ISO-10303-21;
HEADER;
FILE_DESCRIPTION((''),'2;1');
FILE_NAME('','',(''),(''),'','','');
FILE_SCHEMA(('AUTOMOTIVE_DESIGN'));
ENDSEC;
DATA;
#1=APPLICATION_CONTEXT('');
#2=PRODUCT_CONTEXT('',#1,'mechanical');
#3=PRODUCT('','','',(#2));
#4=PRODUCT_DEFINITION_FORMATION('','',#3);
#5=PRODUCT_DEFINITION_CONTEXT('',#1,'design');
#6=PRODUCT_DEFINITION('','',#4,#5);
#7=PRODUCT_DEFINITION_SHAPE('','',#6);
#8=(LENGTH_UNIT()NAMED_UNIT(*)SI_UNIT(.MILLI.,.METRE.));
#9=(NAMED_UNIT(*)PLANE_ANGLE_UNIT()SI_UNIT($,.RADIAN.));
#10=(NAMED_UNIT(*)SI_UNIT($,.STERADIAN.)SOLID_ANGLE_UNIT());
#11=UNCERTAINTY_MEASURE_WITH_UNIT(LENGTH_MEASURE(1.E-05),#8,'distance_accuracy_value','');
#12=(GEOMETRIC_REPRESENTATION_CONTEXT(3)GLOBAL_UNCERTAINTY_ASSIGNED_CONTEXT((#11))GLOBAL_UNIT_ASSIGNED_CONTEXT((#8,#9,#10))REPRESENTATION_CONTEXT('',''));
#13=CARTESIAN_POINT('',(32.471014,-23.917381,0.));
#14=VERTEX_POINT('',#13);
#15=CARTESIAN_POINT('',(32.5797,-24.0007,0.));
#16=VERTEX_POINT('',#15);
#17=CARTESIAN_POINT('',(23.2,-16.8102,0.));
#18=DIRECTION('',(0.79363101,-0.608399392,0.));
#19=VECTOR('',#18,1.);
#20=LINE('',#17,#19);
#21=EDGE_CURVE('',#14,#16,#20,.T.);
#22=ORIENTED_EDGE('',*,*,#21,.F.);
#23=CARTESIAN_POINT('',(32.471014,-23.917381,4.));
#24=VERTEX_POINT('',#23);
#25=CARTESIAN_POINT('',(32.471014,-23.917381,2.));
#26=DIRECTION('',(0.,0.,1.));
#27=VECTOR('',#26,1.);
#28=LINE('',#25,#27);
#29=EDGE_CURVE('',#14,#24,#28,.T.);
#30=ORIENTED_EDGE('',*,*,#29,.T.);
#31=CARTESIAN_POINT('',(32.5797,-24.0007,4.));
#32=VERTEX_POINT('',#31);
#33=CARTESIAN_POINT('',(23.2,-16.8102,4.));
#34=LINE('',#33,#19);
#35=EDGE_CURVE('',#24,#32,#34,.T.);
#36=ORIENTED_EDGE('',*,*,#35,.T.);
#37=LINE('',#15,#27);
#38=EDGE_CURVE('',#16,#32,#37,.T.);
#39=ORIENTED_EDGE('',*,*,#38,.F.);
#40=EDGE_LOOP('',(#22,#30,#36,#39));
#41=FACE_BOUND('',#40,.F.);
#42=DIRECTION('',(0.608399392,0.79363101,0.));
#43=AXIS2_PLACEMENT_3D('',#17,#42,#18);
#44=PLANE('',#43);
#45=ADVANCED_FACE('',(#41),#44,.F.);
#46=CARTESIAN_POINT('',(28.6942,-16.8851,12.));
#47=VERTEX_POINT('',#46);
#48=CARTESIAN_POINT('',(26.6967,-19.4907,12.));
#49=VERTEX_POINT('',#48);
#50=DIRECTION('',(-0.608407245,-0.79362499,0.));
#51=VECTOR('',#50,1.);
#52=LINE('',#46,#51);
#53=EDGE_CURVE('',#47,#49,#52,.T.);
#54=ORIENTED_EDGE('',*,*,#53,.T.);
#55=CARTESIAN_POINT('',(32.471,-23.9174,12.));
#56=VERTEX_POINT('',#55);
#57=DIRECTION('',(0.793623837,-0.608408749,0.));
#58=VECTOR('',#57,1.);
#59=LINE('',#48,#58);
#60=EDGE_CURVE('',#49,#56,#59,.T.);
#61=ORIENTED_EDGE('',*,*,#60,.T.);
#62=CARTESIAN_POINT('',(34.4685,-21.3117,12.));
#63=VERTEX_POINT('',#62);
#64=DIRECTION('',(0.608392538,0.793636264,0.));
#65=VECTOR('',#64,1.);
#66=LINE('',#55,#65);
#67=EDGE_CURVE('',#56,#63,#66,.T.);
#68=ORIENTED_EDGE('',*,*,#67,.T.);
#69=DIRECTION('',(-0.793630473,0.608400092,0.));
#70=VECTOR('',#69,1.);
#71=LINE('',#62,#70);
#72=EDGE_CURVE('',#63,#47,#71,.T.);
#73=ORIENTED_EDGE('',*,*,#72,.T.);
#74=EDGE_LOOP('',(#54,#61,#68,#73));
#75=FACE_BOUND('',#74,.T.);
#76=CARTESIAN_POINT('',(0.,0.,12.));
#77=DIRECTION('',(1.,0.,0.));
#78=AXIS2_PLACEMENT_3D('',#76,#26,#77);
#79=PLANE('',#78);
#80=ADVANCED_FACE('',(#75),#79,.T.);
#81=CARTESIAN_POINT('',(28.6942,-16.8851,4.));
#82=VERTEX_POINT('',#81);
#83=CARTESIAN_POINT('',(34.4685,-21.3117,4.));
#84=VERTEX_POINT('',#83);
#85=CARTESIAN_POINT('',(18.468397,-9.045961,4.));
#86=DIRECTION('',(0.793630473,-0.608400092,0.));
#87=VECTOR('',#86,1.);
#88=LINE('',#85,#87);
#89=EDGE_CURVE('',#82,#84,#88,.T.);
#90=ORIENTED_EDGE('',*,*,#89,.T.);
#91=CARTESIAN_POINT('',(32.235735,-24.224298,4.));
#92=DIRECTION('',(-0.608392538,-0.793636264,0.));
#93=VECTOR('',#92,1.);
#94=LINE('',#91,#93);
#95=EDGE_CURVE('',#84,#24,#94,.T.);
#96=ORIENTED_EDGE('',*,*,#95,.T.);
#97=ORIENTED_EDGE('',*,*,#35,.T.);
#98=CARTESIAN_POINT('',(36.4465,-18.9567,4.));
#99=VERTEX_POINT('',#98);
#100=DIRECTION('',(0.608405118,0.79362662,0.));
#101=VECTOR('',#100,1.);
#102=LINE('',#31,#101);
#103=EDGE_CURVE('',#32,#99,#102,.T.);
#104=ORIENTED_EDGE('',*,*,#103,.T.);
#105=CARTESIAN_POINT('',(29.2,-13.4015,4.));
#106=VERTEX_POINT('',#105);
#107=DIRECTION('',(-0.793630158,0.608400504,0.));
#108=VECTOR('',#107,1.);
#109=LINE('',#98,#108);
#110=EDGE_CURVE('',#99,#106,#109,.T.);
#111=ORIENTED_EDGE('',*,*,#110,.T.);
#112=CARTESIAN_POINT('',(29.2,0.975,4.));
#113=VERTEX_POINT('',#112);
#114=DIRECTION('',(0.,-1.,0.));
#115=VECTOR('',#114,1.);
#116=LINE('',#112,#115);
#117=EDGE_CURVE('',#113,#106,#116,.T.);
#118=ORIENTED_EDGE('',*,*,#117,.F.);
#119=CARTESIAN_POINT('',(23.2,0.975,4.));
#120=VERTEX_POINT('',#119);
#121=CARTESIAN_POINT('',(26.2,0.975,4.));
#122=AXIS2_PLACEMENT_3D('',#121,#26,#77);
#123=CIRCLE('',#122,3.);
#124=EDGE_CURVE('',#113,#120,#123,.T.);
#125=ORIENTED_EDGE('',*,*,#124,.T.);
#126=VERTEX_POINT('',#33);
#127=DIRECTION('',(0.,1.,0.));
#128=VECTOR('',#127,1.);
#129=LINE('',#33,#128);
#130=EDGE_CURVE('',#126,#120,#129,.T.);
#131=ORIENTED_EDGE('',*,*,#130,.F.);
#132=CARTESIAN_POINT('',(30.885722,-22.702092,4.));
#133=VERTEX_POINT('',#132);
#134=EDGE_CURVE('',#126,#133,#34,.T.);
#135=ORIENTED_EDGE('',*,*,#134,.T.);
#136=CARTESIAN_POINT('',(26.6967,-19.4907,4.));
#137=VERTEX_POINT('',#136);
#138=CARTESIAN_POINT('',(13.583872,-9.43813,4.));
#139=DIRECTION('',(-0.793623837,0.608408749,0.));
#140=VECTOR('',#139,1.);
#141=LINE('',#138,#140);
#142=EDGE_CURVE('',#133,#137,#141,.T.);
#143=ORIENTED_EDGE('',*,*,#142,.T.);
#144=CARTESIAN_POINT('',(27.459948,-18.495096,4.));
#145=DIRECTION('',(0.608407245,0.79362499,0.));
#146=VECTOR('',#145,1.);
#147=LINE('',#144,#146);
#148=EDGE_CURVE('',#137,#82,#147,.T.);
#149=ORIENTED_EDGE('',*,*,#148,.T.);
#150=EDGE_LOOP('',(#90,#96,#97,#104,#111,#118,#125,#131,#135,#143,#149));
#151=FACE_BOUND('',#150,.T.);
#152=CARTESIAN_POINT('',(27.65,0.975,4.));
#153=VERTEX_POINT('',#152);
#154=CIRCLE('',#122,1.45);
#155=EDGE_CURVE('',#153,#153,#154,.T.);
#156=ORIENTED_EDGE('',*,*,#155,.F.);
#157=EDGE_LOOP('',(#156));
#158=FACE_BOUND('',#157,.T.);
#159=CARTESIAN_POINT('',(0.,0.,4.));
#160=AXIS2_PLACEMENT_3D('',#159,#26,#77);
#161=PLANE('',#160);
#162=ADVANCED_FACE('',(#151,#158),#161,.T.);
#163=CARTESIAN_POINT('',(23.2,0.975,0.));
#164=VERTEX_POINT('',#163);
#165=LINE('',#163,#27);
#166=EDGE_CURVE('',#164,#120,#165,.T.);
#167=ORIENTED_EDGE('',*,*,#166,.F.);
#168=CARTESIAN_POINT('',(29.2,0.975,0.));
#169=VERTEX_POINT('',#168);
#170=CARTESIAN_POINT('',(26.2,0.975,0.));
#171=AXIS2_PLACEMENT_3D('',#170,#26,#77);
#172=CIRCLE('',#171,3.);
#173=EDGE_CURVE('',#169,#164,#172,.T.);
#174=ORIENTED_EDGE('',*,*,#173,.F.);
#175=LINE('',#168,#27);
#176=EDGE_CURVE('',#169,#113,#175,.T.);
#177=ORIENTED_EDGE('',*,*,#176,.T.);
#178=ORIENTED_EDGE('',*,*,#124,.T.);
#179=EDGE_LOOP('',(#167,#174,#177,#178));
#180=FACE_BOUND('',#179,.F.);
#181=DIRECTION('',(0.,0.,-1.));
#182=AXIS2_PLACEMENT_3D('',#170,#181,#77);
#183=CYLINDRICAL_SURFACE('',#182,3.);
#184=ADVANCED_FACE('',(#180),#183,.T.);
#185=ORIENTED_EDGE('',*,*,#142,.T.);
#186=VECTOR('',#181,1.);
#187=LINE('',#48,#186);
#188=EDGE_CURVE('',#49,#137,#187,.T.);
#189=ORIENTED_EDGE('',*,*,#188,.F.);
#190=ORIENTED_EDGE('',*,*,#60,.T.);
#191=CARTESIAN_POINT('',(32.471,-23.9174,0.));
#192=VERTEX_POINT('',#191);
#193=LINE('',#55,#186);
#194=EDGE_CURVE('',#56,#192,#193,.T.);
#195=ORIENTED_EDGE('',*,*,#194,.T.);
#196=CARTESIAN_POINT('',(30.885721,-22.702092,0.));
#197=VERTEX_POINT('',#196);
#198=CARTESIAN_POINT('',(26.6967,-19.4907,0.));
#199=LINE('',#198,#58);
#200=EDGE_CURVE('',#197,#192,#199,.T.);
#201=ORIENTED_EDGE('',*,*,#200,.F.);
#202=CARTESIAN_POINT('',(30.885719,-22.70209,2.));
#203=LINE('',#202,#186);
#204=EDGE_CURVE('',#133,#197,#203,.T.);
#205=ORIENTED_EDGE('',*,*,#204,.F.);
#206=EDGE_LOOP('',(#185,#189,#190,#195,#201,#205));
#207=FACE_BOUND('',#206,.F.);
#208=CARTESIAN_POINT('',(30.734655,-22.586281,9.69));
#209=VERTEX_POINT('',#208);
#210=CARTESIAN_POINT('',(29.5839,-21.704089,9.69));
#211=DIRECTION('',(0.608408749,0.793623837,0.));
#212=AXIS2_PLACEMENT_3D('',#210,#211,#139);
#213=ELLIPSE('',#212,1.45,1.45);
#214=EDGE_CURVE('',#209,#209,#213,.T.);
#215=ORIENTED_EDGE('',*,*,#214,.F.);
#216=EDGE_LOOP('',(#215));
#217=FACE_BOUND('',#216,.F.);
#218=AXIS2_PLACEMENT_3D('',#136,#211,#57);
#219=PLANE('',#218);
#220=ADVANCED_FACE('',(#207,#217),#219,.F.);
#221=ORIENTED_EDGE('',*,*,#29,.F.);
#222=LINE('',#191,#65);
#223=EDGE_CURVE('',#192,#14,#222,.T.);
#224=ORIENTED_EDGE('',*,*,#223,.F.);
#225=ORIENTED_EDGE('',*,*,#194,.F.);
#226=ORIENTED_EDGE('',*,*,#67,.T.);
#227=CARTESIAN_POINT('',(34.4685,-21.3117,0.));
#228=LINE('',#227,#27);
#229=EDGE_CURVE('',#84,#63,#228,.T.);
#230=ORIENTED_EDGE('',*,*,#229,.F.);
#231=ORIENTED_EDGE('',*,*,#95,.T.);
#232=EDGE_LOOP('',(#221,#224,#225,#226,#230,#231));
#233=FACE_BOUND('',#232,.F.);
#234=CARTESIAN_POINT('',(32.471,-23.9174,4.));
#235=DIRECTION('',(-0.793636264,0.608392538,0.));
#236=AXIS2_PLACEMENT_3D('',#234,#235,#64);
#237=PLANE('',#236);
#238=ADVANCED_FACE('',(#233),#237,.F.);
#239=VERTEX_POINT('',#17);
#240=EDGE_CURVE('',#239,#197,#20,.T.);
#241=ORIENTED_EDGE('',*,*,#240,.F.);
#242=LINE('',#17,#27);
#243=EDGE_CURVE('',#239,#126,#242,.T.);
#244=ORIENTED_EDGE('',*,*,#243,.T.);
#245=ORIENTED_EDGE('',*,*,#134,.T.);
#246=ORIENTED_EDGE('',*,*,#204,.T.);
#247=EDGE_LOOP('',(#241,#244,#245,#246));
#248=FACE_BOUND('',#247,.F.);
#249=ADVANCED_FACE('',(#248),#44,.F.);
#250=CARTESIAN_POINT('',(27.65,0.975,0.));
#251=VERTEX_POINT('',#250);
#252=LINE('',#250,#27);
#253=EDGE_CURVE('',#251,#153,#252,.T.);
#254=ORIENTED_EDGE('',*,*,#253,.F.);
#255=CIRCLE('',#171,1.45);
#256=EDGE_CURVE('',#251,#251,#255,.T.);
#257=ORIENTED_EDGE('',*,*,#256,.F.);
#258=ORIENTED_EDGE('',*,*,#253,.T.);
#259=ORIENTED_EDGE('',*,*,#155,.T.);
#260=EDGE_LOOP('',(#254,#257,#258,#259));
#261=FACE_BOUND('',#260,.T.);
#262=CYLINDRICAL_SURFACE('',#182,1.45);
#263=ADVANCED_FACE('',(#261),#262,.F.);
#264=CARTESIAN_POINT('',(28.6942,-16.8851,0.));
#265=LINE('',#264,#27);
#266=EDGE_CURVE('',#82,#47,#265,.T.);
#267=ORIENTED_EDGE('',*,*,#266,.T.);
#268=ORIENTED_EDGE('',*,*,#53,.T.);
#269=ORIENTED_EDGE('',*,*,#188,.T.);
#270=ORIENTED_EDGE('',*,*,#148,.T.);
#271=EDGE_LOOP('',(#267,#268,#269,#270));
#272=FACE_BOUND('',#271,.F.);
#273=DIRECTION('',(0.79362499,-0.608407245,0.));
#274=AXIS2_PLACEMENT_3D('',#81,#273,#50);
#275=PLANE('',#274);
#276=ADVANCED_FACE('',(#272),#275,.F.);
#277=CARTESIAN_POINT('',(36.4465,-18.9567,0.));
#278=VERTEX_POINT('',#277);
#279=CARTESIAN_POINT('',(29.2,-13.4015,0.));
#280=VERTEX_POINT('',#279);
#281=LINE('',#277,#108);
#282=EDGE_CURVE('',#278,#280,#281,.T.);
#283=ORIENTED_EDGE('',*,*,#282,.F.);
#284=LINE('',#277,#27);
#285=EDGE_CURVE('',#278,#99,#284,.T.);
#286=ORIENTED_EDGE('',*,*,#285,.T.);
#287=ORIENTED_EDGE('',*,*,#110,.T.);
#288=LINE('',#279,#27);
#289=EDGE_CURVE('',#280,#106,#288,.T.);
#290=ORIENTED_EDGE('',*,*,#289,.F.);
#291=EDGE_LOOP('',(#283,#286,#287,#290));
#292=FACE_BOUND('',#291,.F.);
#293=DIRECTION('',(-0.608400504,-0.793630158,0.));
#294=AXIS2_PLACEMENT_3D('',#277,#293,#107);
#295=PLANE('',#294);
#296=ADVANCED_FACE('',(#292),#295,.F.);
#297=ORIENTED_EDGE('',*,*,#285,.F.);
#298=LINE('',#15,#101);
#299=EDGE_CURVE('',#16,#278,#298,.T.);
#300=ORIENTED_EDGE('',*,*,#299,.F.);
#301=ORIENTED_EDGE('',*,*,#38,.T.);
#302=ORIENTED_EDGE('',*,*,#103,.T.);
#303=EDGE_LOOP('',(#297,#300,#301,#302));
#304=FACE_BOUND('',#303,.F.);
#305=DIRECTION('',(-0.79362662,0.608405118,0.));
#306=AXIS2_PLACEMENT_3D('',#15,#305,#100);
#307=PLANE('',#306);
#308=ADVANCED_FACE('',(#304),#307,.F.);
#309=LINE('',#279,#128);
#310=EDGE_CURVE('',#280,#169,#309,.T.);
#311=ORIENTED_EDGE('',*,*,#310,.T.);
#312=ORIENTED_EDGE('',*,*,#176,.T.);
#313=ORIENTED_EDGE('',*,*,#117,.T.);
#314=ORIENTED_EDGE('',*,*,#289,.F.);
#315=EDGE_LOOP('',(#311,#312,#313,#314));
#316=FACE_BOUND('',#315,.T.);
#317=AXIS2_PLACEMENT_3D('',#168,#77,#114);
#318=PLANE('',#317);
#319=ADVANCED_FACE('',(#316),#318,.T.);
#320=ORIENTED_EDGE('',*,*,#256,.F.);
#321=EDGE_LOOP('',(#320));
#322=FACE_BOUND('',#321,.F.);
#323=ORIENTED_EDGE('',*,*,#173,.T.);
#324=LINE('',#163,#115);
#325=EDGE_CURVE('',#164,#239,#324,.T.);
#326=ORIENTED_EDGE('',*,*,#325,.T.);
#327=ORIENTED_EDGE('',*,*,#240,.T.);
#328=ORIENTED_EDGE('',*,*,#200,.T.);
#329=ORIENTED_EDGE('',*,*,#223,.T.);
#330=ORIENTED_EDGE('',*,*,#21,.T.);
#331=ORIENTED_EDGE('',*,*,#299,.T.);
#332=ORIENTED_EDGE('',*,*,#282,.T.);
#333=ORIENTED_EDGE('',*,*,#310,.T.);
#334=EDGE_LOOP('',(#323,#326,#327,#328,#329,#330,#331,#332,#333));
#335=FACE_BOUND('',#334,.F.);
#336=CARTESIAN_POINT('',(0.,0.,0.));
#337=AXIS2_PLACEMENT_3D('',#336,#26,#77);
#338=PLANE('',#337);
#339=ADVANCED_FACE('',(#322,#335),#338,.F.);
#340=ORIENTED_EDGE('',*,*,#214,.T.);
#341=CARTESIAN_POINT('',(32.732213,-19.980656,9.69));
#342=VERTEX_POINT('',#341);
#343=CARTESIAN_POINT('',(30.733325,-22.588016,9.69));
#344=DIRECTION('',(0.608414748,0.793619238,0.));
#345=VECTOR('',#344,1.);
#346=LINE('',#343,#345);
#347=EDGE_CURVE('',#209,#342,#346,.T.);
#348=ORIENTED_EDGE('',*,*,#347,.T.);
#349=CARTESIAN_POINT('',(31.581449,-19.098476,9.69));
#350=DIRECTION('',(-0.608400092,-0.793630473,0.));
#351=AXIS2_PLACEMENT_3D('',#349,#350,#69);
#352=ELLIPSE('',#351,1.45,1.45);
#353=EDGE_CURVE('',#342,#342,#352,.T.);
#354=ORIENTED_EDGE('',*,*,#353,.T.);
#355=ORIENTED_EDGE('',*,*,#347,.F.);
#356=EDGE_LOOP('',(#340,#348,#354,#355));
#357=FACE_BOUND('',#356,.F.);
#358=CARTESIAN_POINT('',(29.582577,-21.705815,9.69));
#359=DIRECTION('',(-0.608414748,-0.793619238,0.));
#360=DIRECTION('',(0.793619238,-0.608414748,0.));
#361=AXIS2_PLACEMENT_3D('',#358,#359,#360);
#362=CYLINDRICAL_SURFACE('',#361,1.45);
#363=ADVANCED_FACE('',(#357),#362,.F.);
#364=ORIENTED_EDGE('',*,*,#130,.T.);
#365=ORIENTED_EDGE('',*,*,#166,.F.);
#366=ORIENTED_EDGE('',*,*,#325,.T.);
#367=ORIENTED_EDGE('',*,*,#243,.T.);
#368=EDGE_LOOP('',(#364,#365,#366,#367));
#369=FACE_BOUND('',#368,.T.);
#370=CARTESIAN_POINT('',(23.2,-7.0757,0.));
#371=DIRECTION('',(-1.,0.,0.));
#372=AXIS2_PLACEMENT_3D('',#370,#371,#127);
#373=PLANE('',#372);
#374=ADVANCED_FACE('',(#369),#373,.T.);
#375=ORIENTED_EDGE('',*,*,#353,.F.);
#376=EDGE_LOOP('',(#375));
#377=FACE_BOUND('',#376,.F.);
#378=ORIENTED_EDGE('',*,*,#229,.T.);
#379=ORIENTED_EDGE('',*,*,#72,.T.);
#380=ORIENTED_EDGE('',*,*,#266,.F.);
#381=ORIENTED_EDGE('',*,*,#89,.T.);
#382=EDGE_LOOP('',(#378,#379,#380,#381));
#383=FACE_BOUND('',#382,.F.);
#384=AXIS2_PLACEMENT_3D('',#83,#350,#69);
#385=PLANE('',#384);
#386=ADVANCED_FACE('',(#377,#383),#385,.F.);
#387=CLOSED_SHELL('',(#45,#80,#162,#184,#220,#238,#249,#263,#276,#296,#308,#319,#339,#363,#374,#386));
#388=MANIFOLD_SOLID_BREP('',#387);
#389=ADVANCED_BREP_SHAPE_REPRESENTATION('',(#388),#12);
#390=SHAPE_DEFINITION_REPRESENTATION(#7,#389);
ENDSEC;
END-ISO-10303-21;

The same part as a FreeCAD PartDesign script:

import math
import FreeCAD as App
import Part
import Sketcher

V = App.Vector


def add_polygon(sketch, points):
    """Adds a closed chain of lines whose ends are joined by coincident constraints."""
    first, n = sketch.GeometryCount, len(points)
    for a, b in zip(points, points[1:] + points[:1]):
        sketch.addGeometry(Part.LineSegment(App.Vector(*a, 0), App.Vector(*b, 0)), False)
    for i in range(n):
        sketch.addConstraint(Sketcher.Constraint("Coincident", first + i, 2, first + (i + 1) % n, 1))

doc = App.newDocument("Part")
body = doc.addObject("PartDesign::Body", "Body")

sketch1 = doc.addObject("Sketcher::SketchObject", "Sketch")
body.addObject(sketch1)
sketch1.AttachmentSupport = (doc.XY_Plane, [""])
sketch1.MapMode = "FlatFace"
sketch1.addGeometry([
    Part.ArcOfCircle(Part.Circle(V(26.2, 1, 0), V(0, 0, 1), 3), math.radians(0), math.radians(180)),
    Part.LineSegment(V(23.2, 1, 0), V(23.2, -16.8, 0)),
    Part.LineSegment(V(23.2, -16.8, 0), V(32.6, -24, 0)),
    Part.LineSegment(V(32.6, -24, 0), V(36.4, -19, 0)),
    Part.LineSegment(V(36.4, -19, 0), V(29.2, -13.4, 0)),
    Part.LineSegment(V(29.2, -13.4, 0), V(29.2, 1, 0)),
    Part.Circle(V(26.2, 1, 0), V(0, 0, 1), 1.4),
], False)
sketch1.addConstraint([
    Sketcher.Constraint("Tangent", 0, 2, 1, 1),
    Sketcher.Constraint("Coincident", 1, 2, 2, 1),
    Sketcher.Constraint("Coincident", 2, 2, 3, 1),
    Sketcher.Constraint("Coincident", 3, 2, 4, 1),
    Sketcher.Constraint("Coincident", 4, 2, 5, 1),
    Sketcher.Constraint("Tangent", 5, 2, 0, 1),
    Sketcher.Constraint("Vertical", 1),
    Sketcher.Constraint("Vertical", 5),
    Sketcher.Constraint("Coincident", 6, 3, 0, 3),
    Sketcher.Constraint("Perpendicular", 2, 3),
    Sketcher.Constraint("Perpendicular", 3, 4),
    Sketcher.Constraint("Radius", 0, 3.0),
    Sketcher.Constraint("Diameter", 6, 2.9),
    Sketcher.Constraint("DistanceX", -1, 1, 0, 3, 26.2),
    Sketcher.Constraint("DistanceY", 1, 2, 1, 1, 17.7852),
    Sketcher.Constraint("DistanceY", 5, 1, 5, 2, 14.3765),
    Sketcher.Constraint("DistanceY", -1, 1, 0, 3, 0.975),
    Sketcher.Constraint("DistanceY", 2, 2, 3, 2, 5.044),
    Sketcher.Constraint("Distance", 2, 11.8187),
])
pad1 = doc.addObject("PartDesign::Pad", "Pad")
body.addObject(pad1)
pad1.Profile = sketch1
pad1.Length = 4

sketch2 = doc.addObject("Sketcher::SketchObject", "Sketch001")
body.addObject(sketch2)
sketch2.AttachmentSupport = (doc.XY_Plane, [""])
sketch2.MapMode = "FlatFace"
sketch2.AttachmentOffset = App.Placement(V(0, 0, 4), App.Rotation())
add_polygon(sketch2, [(32.5, -23.9), (34.5, -21.3), (28.7, -16.9), (26.7, -19.5)])
sketch2.addConstraint([
    Sketcher.Constraint("Perpendicular", 0, 1),
    Sketcher.Constraint("Perpendicular", 1, 2),
    Sketcher.Constraint("Perpendicular", 2, 3),
    Sketcher.Constraint("DistanceY", 1, 2, -1, 1, 16.885),
    Sketcher.Constraint("DistanceX", -1, 1, 3, 2, 32.471),
    Sketcher.Constraint("DistanceY", 0, 2, 2, 2, 1.821),
    Sketcher.Constraint("Distance", 0, 3.2832),
    Sketcher.Constraint("Distance", 1, 7.2758),
])
pad2 = doc.addObject("PartDesign::Pad", "Pad001")
body.addObject(pad2)
pad2.Profile = sketch2
pad2.Type = "TwoLengths"
pad2.Length = 8
pad2.Length2 = 4

sketch3 = doc.addObject("Sketcher::SketchObject", "Sketch002")
body.addObject(sketch3)
sketch3.Placement = App.Placement(V(23.2, -16.8102, 0), App.Rotation(V(0.793619238, -0.608414748, 0), V(0, 0, 1.000000001), V(-0.608414748, -0.793619238, 0), "ZXY"))
sketch3.addGeometry(Part.Circle(V(8, 9.7, 0), V(0, 0, 1), 1.4), False)
sketch3.addConstraint([
    Sketcher.Constraint("Diameter", 0, 2.9),
    Sketcher.Constraint("DistanceY", -1, 1, 0, 3, 9.69),
    Sketcher.Constraint("DistanceX", -1, 1, 0, 3, 8.044),
])
pocket1 = doc.addObject("PartDesign::Pocket", "Pocket")
body.addObject(pocket1)
pocket1.Profile = sketch3
pocket1.Length = 7

doc.recompute()
